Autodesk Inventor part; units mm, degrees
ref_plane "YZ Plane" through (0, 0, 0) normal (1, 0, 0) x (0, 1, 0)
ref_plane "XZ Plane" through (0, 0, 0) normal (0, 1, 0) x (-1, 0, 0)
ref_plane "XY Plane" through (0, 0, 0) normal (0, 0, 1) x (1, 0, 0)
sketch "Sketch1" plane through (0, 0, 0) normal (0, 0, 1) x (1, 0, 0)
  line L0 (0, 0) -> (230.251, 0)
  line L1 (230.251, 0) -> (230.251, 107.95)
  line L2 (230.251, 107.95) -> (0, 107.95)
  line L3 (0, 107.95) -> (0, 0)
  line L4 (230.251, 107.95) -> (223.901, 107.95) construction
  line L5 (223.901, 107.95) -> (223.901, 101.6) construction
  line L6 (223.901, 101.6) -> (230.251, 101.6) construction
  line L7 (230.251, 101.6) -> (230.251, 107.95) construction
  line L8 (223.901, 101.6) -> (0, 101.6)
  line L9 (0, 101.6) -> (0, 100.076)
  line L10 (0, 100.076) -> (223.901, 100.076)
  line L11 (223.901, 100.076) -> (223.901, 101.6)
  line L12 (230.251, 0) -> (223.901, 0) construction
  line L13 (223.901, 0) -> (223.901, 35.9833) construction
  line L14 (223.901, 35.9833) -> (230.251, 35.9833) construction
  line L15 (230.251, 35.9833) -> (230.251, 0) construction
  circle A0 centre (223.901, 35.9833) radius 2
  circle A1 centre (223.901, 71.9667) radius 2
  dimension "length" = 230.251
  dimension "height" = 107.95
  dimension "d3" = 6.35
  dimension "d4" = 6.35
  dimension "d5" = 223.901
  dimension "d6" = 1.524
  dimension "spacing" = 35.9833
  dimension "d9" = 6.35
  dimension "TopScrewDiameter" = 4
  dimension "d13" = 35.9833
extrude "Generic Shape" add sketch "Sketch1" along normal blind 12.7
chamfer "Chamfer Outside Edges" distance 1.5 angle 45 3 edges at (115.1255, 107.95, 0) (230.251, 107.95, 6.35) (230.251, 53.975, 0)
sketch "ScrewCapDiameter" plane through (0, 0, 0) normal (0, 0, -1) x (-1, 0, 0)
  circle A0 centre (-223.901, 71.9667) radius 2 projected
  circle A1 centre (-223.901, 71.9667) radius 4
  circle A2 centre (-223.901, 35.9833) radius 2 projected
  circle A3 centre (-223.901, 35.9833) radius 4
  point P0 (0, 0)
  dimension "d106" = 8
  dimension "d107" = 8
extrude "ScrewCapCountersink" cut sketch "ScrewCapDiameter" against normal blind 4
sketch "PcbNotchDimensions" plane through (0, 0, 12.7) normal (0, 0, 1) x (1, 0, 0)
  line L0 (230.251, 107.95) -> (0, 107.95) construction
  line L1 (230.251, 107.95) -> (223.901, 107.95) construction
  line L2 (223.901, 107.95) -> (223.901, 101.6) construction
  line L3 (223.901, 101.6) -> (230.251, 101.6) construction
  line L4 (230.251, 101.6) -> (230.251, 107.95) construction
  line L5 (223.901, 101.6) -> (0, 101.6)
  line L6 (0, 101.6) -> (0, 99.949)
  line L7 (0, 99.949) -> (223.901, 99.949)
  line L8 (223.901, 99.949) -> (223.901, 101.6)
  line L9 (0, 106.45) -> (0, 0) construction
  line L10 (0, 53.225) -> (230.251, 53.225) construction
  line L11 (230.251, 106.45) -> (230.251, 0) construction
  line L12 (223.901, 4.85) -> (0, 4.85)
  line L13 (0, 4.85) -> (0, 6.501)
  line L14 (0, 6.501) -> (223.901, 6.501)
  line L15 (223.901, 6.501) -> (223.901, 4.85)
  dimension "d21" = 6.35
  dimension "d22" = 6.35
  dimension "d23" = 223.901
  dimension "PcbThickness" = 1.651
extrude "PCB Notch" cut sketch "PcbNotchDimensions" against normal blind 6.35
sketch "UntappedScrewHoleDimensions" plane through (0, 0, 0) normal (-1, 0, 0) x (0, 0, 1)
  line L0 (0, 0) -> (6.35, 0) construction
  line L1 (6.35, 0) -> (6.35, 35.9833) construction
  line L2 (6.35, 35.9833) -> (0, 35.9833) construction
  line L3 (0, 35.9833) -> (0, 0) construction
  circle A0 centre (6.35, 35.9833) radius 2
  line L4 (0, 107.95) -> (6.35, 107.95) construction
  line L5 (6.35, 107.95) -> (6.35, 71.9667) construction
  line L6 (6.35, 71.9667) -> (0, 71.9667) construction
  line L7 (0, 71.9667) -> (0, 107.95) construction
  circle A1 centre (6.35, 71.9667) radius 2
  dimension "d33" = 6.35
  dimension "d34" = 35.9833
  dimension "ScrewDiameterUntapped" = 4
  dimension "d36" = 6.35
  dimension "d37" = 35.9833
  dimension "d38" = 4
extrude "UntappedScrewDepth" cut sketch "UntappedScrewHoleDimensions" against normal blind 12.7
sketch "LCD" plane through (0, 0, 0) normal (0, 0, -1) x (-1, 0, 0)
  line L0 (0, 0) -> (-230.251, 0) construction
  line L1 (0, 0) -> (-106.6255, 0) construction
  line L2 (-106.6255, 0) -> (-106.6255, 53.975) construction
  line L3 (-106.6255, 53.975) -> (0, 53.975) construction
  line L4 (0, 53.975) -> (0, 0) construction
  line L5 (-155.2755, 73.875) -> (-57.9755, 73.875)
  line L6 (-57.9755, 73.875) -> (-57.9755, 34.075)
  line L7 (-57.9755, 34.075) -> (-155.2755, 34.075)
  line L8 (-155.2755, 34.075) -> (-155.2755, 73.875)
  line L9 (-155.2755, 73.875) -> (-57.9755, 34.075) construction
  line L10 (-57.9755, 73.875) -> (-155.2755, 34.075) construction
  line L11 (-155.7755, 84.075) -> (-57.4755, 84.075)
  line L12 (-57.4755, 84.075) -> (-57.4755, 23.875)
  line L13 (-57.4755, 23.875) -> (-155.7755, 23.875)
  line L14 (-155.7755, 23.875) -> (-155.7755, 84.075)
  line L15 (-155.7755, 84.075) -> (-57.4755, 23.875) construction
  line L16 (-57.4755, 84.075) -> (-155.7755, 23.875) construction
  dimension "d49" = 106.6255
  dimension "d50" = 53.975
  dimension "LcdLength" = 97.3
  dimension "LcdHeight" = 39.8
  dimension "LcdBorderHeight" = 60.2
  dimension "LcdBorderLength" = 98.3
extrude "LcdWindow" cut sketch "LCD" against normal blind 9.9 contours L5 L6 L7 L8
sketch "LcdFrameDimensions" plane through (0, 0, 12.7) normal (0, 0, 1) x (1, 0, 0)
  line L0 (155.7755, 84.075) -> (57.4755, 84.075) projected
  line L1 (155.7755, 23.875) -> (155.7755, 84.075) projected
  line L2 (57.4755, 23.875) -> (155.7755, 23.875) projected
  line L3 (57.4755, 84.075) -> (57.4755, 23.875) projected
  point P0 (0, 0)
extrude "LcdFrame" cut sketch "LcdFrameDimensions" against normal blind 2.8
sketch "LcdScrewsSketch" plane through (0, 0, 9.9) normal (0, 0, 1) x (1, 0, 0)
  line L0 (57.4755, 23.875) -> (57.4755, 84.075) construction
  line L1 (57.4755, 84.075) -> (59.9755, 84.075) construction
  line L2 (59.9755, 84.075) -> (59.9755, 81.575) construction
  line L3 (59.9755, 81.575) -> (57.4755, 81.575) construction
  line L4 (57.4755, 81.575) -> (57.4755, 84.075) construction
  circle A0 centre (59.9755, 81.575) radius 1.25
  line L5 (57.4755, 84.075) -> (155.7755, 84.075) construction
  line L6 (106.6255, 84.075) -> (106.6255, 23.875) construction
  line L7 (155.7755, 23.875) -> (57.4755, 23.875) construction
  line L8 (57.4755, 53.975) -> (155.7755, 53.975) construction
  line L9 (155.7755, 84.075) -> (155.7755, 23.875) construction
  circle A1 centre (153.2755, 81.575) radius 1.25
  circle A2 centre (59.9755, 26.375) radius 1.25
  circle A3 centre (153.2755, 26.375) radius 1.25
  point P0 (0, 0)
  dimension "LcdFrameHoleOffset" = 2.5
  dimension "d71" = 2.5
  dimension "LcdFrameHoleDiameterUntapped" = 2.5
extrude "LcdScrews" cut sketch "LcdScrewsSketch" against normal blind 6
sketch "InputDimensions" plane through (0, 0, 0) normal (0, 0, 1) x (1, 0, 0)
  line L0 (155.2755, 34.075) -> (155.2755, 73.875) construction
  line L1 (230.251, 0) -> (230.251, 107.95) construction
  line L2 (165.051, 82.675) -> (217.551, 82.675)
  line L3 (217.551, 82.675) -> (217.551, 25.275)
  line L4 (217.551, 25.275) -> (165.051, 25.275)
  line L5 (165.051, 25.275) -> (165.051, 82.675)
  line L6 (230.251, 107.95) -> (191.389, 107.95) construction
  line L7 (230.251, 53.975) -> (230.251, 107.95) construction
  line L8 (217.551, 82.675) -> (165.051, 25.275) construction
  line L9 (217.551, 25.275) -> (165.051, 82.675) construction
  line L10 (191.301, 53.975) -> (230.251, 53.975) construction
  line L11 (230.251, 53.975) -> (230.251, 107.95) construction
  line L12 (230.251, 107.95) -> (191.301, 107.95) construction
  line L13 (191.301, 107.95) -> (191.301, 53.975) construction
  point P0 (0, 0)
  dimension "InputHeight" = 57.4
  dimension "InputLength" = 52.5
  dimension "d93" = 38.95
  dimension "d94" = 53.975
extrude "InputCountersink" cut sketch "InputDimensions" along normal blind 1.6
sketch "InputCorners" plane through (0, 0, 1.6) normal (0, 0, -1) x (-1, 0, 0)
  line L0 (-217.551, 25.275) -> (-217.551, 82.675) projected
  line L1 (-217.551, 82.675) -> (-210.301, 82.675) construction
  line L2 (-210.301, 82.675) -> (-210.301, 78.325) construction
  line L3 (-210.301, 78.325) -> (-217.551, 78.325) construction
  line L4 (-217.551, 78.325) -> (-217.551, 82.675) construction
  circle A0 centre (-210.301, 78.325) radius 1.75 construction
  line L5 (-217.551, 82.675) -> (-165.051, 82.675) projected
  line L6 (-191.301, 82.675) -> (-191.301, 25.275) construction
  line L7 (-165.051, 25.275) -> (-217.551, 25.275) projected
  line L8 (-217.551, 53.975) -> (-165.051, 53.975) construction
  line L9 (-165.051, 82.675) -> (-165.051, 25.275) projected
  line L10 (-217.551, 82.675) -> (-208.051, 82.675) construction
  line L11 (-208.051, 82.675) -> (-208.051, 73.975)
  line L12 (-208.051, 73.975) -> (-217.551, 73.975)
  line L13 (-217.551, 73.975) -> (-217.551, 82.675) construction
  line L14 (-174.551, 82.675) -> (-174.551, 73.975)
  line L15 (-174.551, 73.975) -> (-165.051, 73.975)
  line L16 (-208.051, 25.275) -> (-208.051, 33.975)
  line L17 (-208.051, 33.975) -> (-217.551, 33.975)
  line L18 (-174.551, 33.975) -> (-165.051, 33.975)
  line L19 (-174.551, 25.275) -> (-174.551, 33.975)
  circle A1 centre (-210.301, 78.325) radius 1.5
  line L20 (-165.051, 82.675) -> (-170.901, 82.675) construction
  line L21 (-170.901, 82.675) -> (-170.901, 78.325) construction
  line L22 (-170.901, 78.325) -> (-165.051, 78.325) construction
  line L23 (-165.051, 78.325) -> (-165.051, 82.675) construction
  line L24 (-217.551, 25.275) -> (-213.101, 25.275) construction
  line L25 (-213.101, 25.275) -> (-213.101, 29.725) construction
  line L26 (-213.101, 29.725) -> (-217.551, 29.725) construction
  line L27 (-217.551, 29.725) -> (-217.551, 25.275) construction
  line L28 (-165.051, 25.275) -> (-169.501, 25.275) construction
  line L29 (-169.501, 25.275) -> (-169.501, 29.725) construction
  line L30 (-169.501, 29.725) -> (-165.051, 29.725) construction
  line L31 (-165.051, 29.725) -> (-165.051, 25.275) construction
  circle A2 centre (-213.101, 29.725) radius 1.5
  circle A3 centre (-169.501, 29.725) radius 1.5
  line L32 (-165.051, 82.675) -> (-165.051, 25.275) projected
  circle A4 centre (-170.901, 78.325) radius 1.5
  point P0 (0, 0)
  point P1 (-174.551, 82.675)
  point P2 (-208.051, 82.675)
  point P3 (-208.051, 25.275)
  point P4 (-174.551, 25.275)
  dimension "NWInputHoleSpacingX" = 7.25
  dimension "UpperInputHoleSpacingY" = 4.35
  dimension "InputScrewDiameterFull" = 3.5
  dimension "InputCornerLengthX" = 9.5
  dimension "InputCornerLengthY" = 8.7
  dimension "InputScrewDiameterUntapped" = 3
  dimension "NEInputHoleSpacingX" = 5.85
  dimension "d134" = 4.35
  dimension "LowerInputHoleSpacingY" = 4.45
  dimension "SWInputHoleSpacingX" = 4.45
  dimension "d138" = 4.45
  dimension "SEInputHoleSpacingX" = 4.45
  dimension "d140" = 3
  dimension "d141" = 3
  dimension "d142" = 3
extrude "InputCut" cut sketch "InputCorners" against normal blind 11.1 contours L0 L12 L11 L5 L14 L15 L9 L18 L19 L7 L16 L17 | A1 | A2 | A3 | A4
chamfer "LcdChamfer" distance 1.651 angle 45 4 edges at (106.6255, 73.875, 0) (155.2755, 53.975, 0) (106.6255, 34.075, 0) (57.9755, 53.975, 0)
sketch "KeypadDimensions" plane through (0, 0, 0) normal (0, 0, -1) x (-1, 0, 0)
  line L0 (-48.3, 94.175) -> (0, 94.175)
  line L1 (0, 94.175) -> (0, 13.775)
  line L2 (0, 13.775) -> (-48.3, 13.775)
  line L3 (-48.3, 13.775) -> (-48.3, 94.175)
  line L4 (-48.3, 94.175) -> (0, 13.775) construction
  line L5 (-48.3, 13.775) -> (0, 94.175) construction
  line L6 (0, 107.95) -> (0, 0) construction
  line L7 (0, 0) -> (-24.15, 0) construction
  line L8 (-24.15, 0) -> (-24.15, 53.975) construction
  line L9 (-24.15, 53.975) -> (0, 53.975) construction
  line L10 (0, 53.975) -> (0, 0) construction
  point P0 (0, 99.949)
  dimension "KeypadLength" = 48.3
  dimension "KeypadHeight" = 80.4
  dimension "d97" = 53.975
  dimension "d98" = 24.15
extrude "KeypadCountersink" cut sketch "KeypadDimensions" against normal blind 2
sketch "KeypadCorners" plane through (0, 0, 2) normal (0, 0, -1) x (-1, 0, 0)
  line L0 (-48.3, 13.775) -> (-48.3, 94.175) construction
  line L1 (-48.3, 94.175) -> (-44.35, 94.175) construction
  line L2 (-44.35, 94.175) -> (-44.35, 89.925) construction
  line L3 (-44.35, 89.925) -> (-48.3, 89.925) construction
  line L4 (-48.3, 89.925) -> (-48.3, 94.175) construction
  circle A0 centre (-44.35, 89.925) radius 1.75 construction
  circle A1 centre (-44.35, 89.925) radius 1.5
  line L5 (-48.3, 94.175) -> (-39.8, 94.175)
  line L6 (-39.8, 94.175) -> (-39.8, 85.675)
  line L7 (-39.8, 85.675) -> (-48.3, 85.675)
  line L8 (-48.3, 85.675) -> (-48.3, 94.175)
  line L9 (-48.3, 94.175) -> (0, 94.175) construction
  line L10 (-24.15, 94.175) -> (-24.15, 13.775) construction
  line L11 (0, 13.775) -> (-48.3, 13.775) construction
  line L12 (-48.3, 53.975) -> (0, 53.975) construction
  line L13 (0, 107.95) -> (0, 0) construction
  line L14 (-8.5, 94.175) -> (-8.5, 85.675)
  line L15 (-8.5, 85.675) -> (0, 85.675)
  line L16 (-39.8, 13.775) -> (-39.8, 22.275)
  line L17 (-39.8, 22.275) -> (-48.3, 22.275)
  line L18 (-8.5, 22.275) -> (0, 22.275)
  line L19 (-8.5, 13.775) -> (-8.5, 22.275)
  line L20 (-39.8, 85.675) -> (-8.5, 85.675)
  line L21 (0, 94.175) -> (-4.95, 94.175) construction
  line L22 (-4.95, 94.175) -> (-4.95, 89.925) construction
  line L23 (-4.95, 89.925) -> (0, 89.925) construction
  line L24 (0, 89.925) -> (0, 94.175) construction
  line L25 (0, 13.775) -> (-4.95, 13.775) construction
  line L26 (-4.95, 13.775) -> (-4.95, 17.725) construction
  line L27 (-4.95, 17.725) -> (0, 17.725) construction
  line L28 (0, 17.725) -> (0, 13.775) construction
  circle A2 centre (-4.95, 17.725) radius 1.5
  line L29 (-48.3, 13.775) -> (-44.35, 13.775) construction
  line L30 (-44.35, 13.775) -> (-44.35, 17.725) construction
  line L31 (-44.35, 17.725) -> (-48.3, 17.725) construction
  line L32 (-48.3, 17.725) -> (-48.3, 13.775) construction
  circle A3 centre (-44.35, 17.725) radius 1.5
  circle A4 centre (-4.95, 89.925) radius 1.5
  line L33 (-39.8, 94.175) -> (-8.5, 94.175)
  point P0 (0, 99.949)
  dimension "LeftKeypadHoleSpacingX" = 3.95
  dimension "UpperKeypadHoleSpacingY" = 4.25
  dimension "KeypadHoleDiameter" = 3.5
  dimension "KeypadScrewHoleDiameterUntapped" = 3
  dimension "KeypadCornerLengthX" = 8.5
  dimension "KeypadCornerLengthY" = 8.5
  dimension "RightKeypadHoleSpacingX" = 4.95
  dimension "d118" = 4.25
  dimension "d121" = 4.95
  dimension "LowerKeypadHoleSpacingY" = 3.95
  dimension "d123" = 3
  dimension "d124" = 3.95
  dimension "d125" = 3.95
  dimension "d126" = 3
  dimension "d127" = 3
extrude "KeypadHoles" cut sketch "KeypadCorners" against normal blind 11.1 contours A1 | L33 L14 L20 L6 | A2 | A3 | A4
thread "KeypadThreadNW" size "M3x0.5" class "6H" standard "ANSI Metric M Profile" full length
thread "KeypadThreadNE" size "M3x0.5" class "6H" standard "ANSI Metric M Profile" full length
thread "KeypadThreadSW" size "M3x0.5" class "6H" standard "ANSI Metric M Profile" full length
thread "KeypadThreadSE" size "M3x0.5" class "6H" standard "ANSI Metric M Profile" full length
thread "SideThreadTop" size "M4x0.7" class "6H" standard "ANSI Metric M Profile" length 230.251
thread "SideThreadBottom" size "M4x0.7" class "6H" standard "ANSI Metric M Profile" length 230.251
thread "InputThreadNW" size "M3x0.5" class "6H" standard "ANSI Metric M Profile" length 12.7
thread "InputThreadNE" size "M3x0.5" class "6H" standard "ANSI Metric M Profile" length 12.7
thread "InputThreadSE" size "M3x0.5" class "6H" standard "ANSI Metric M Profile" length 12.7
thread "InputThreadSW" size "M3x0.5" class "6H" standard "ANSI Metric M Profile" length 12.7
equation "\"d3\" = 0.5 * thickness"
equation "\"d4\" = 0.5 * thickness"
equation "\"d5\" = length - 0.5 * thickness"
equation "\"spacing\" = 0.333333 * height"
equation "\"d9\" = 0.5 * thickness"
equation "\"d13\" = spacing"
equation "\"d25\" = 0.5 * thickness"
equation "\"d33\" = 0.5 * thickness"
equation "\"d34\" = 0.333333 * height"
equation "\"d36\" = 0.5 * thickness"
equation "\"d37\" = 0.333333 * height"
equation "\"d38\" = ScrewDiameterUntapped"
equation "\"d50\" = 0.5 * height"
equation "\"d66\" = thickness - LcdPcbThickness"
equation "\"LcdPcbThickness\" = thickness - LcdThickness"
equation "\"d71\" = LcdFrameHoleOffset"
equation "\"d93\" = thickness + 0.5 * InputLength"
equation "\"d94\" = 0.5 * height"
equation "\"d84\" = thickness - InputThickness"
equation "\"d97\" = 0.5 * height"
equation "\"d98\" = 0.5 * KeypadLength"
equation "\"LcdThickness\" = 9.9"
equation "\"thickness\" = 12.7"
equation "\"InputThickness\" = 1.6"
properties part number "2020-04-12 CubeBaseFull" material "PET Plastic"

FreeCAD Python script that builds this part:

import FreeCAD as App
import Part
import Sketcher

V = App.Vector
Q = App.Units.Quantity


def edges_at(feature, points):
    """Names of the edges that pass closest to the given points."""
    edges = feature.Shape.Edges
    near = lambda p: min(range(len(edges)), key=lambda i: edges[i].distToShape(Part.Vertex(*p))[0])
    return sorted({f"Edge{near(p) + 1}" for p in points})

doc = App.newDocument("Part")
body = doc.addObject("PartDesign::Body", "Body")

sketch1 = body.newObject("Sketcher::SketchObject", "Sketch")
sketch1.AttachmentSupport = (doc.getObject("XY_Plane"), [""])
sketch1.MapMode = "FlatFace"
sketch1.addGeometry(Part.LineSegment(V(0, 0, 0), V(230.3, 0, 0)), False)
sketch1.addGeometry(Part.LineSegment(V(230.3, 0, 0), V(230.3, 108, 0)), False)
sketch1.addGeometry(Part.LineSegment(V(230.3, 108, 0), V(0, 108, 0)), False)
sketch1.addGeometry(Part.LineSegment(V(0, 108, 0), V(0, 0, 0)), False)
sketch1.addGeometry(Part.Circle(V(223.9, 36, 0), V(0, 0, 1), 2), False)
sketch1.addGeometry(Part.Circle(V(223.9, 72, 0), V(0, 0, 1), 2), False)
sketch1.addConstraint(Sketcher.Constraint("Coincident", 0, 2, 1, 1))
sketch1.addConstraint(Sketcher.Constraint("Coincident", 1, 2, 2, 1))
sketch1.addConstraint(Sketcher.Constraint("Coincident", 2, 2, 3, 1))
sketch1.addConstraint(Sketcher.Constraint("Coincident", 3, 2, 0, 1))
sketch1.addConstraint(Sketcher.Constraint("Horizontal", 0))
sketch1.addConstraint(Sketcher.Constraint("Vertical", 1))
sketch1.addConstraint(Sketcher.Constraint("Horizontal", 2))
sketch1.addConstraint(Sketcher.Constraint("Vertical", 3))
sketch1.addConstraint(Sketcher.Constraint("Coincident", 3, 2, -1, 1))
sketch1.addConstraint(Sketcher.Constraint("Equal", 4, 5))
sketch1.addConstraint(Sketcher.Constraint("Vertical", 4, 3, 5, 3))
sketch1.addConstraint(Sketcher.Constraint("Diameter", 4, Q("4 mm")))
sketch1.addConstraint(Sketcher.Constraint("DistanceY", 1, 1, 1, 2, Q("107.95 mm")))
sketch1.addConstraint(Sketcher.Constraint("DistanceX", 0, 1, 0, 2, Q("230.251 mm")))
sketch1.addConstraint(Sketcher.Constraint("DistanceX", 4, 3, 0, 2, Q("6.35 mm")))
sketch1.addConstraint(Sketcher.Constraint("DistanceY", -1, 1, 4, 3, Q("35.9833 mm")))
sketch1.addConstraint(Sketcher.Constraint("DistanceY", 4, 3, 5, 3, Q("35.9834 mm")))
pad1 = body.newObject("PartDesign::Pad", "Pad")
pad1.Profile = sketch1
pad1.Length = 12.7
doc.recompute()

chamfer = body.newObject("PartDesign::Chamfer", "Chamfer")
chamfer.Base = (pad1, edges_at(pad1, [(115.126, 107.95, 0), (230.251, 107.95, 6.35), (230.251, 53.975, 0)]))
chamfer.Size = 1.5

sketch2 = body.newObject("Sketcher::SketchObject", "Sketch001")
sketch2.AttachmentSupport = (doc.getObject("XY_Plane"), [""])
sketch2.MapMode = "FlatFace"
sketch2.addGeometry(Part.Circle(V(223.9, 72, 0), V(0, 0, 1), 4), False)
sketch2.addGeometry(Part.Circle(V(223.9, 72, 0), V(0, 0, 1), 2), False)
sketch2.addGeometry(Part.Circle(V(223.9, 36, 0), V(0, 0, 1), 4), False)
sketch2.addGeometry(Part.Circle(V(223.9, 36, 0), V(0, 0, 1), 2), False)
sketch2.addConstraint(Sketcher.Constraint("Coincident", 1, 3, 0, 3))
sketch2.addConstraint(Sketcher.Constraint("Coincident", 3, 3, 2, 3))
sketch2.addConstraint(Sketcher.Constraint("Equal", 0, 2))
sketch2.addConstraint(Sketcher.Constraint("Equal", 1, 3))
sketch2.addConstraint(Sketcher.Constraint("Vertical", 1, 3, 2, 3))
sketch2.addConstraint(Sketcher.Constraint("Diameter", 0, Q("8 mm")))
sketch2.addConstraint(Sketcher.Constraint("Diameter", 1, Q("4 mm")))
sketch2.addConstraint(Sketcher.Constraint("DistanceX", -1, 1, 0, 3, Q("223.901 mm")))
sketch2.addConstraint(Sketcher.Constraint("DistanceY", -1, 1, 0, 3, Q("71.9667 mm")))
sketch2.addConstraint(Sketcher.Constraint("DistanceY", -1, 1, 2, 3, Q("35.9833 mm")))
pocket1 = body.newObject("PartDesign::Pocket", "Pocket")
pocket1.Profile = sketch2
pocket1.Length = 4
pocket1.Reversed = True

sketch3 = body.newObject("Sketcher::SketchObject", "Sketch002")
sketch3.AttachmentSupport = (doc.getObject("XY_Plane"), [""])
sketch3.MapMode = "FlatFace"
sketch3.AttachmentOffset = App.Placement(V(0, 0, 12.7), App.Rotation())
sketch3.addGeometry(Part.LineSegment(V(223.9, 99.9, 0), V(223.9, 101.6, 0)), False)
sketch3.addGeometry(Part.LineSegment(V(223.9, 101.6, 0), V(0, 101.6, 0)), False)
sketch3.addGeometry(Part.LineSegment(V(0, 101.6, 0), V(0, 99.9, 0)), False)
sketch3.addGeometry(Part.LineSegment(V(0, 99.9, 0), V(223.9, 99.9, 0)), False)
sketch3.addGeometry(Part.LineSegment(V(0, 4.8, 0), V(223.9, 4.8, 0)), False)
sketch3.addGeometry(Part.LineSegment(V(223.9, 4.8, 0), V(223.9, 6.5, 0)), False)
sketch3.addGeometry(Part.LineSegment(V(223.9, 6.5, 0), V(0, 6.5, 0)), False)
sketch3.addGeometry(Part.LineSegment(V(0, 6.5, 0), V(0, 4.8, 0)), False)
sketch3.addConstraint(Sketcher.Constraint("Coincident", 0, 2, 1, 1))
sketch3.addConstraint(Sketcher.Constraint("Coincident", 1, 2, 2, 1))
sketch3.addConstraint(Sketcher.Constraint("Coincident", 2, 2, 3, 1))
sketch3.addConstraint(Sketcher.Constraint("Coincident", 3, 2, 0, 1))
sketch3.addConstraint(Sketcher.Constraint("Coincident", 4, 2, 5, 1))
sketch3.addConstraint(Sketcher.Constraint("Coincident", 5, 2, 6, 1))
sketch3.addConstraint(Sketcher.Constraint("Coincident", 6, 2, 7, 1))
sketch3.addConstraint(Sketcher.Constraint("Coincident", 7, 2, 4, 1))
sketch3.addConstraint(Sketcher.Constraint("Vertical", 0))
sketch3.addConstraint(Sketcher.Constraint("Horizontal", 1))
sketch3.addConstraint(Sketcher.Constraint("Vertical", 2))
sketch3.addConstraint(Sketcher.Constraint("Horizontal", 3))
sketch3.addConstraint(Sketcher.Constraint("Horizontal", 4))
sketch3.addConstraint(Sketcher.Constraint("Vertical", 5))
sketch3.addConstraint(Sketcher.Constraint("Horizontal", 6))
sketch3.addConstraint(Sketcher.Constraint("Vertical", 7))
sketch3.addConstraint(Sketcher.Constraint("PointOnObject", 1, 2, -2))
sketch3.addConstraint(Sketcher.Constraint("PointOnObject", 6, 2, -2))
sketch3.addConstraint(Sketcher.Constraint("Vertical", 3, 2, 4, 2))
sketch3.addConstraint(Sketcher.Constraint("Equal", 2, 5))
sketch3.addConstraint(Sketcher.Constraint("DistanceX", 1, 2, 1, 1, Q("223.901 mm")))
sketch3.addConstraint(Sketcher.Constraint("DistanceY", 0, 1, 0, 2, Q("1.651 mm")))
sketch3.addConstraint(Sketcher.Constraint("DistanceY", -1, 1, 0, 2, Q("101.6 mm")))
sketch3.addConstraint(Sketcher.Constraint("DistanceY", -1, 1, 4, 2, Q("4.85 mm")))
pocket2 = body.newObject("PartDesign::Pocket", "Pocket001")
pocket2.Profile = sketch3
pocket2.Length = 6.35

sketch4 = body.newObject("Sketcher::SketchObject", "Sketch003")
sketch4.AttachmentSupport = (doc.getObject("YZ_Plane"), [""])
sketch4.MapMode = "FlatFace"
sketch4.addGeometry(Part.Circle(V(36, 6.3, 0), V(0, 0, 1), 2), False)
sketch4.addGeometry(Part.Circle(V(72, 6.3, 0), V(0, 0, 1), 2), False)
sketch4.addConstraint(Sketcher.Constraint("Equal", 0, 1))
sketch4.addConstraint(Sketcher.Constraint("Horizontal", 0, 3, 1, 3))
sketch4.addConstraint(Sketcher.Constraint("Diameter", 0, Q("4 mm")))
sketch4.addConstraint(Sketcher.Constraint("DistanceY", -1, 1, 0, 3, Q("6.35 mm")))
sketch4.addConstraint(Sketcher.Constraint("DistanceX", -1, 1, 0, 3, Q("35.9833 mm")))
sketch4.addConstraint(Sketcher.Constraint("DistanceX", 0, 3, 1, 3, Q("35.9834 mm")))
pocket3 = body.newObject("PartDesign::Pocket", "Pocket002")
pocket3.Profile = sketch4
pocket3.Length = 12.7
pocket3.Reversed = True

sketch5 = body.newObject("Sketcher::SketchObject", "Sketch004")
sketch5.AttachmentSupport = (doc.getObject("XY_Plane"), [""])
sketch5.MapMode = "FlatFace"
sketch5.addGeometry(Part.LineSegment(V(58, 74, 0), V(155, 74, 0)), False)
sketch5.addGeometry(Part.LineSegment(V(155, 74, 0), V(155, 34, 0)), False)
sketch5.addGeometry(Part.LineSegment(V(155, 34, 0), V(58, 34, 0)), False)
sketch5.addGeometry(Part.LineSegment(V(58, 34, 0), V(58, 74, 0)), False)
sketch5.addConstraint(Sketcher.Constraint("Coincident", 0, 2, 1, 1))
sketch5.addConstraint(Sketcher.Constraint("Coincident", 1, 2, 2, 1))
sketch5.addConstraint(Sketcher.Constraint("Coincident", 2, 2, 3, 1))
sketch5.addConstraint(Sketcher.Constraint("Coincident", 3, 2, 0, 1))
sketch5.addConstraint(Sketcher.Constraint("Horizontal", 0))
sketch5.addConstraint(Sketcher.Constraint("Vertical", 1))
sketch5.addConstraint(Sketcher.Constraint("Horizontal", 2))
sketch5.addConstraint(Sketcher.Constraint("Vertical", 3))
sketch5.addConstraint(Sketcher.Constraint("DistanceX", 0, 1, 0, 2, Q("97.3 mm")))
sketch5.addConstraint(Sketcher.Constraint("DistanceY", 1, 2, 1, 1, Q("39.8 mm")))
sketch5.addConstraint(Sketcher.Constraint("DistanceY", -1, 1, 0, 2, Q("73.875 mm")))
sketch5.addConstraint(Sketcher.Constraint("DistanceX", -1, 1, 0, 2, Q("155.2755 mm")))
pocket4 = body.newObject("PartDesign::Pocket", "Pocket003")
pocket4.Profile = sketch5
pocket4.Length = 9.9
pocket4.Reversed = True

sketch6 = body.newObject("Sketcher::SketchObject", "Sketch005")
sketch6.AttachmentSupport = (doc.getObject("XY_Plane"), [""])
sketch6.MapMode = "FlatFace"
sketch6.AttachmentOffset = App.Placement(V(0, 0, 12.7), App.Rotation())
sketch6.addGeometry(Part.LineSegment(V(156, 24, 0), V(156, 84, 0)), False)
sketch6.addGeometry(Part.LineSegment(V(156, 84, 0), V(57, 84, 0)), False)
sketch6.addGeometry(Part.LineSegment(V(57, 84, 0), V(57, 24, 0)), False)
sketch6.addGeometry(Part.LineSegment(V(57, 24, 0), V(156, 24, 0)), False)
sketch6.addConstraint(Sketcher.Constraint("Coincident", 0, 2, 1, 1))
sketch6.addConstraint(Sketcher.Constraint("Coincident", 1, 2, 2, 1))
sketch6.addConstraint(Sketcher.Constraint("Coincident", 2, 2, 3, 1))
sketch6.addConstraint(Sketcher.Constraint("Coincident", 3, 2, 0, 1))
sketch6.addConstraint(Sketcher.Constraint("Vertical", 0))
sketch6.addConstraint(Sketcher.Constraint("Horizontal", 1))
sketch6.addConstraint(Sketcher.Constraint("Vertical", 2))
sketch6.addConstraint(Sketcher.Constraint("Horizontal", 3))
sketch6.addConstraint(Sketcher.Constraint("DistanceX", 1, 2, 1, 1, Q("98.3 mm")))
sketch6.addConstraint(Sketcher.Constraint("DistanceY", 0, 1, 0, 2, Q("60.2 mm")))
sketch6.addConstraint(Sketcher.Constraint("DistanceY", -1, 1, 0, 2, Q("84.075 mm")))
sketch6.addConstraint(Sketcher.Constraint("DistanceX", -1, 1, 0, 2, Q("155.7755 mm")))
pocket5 = body.newObject("PartDesign::Pocket", "Pocket004")
pocket5.Profile = sketch6
pocket5.Length = 2.8

sketch7 = body.newObject("Sketcher::SketchObject", "Sketch006")
sketch7.AttachmentSupport = (doc.getObject("XY_Plane"), [""])
sketch7.MapMode = "FlatFace"
sketch7.AttachmentOffset = App.Placement(V(0, 0, 9.9), App.Rotation())
sketch7.addGeometry(Part.Circle(V(60, 81.6, 0), V(0, 0, 1), 1.2), False)
sketch7.addGeometry(Part.Circle(V(153.3, 81.6, 0), V(0, 0, 1), 1.2), False)
sketch7.addGeometry(Part.Circle(V(60, 26.4, 0), V(0, 0, 1), 1.2), False)
sketch7.addGeometry(Part.Circle(V(153.3, 26.4, 0), V(0, 0, 1), 1.2), False)
sketch7.addConstraint(Sketcher.Constraint("Equal", 0, 1))
sketch7.addConstraint(Sketcher.Constraint("Equal", 1, 2))
sketch7.addConstraint(Sketcher.Constraint("Equal", 2, 3))
sketch7.addConstraint(Sketcher.Constraint("Horizontal", 0, 3, 1, 3))
sketch7.addConstraint(Sketcher.Constraint("Horizontal", 2, 3, 3, 3))
sketch7.addConstraint(Sketcher.Constraint("Vertical", 0, 3, 2, 3))
sketch7.addConstraint(Sketcher.Constraint("Vertical", 1, 3, 3, 3))
sketch7.addConstraint(Sketcher.Constraint("Diameter", 0, Q("2.5 mm")))
sketch7.addConstraint(Sketcher.Constraint("DistanceX", 0, 3, 1, 3, Q("93.3 mm")))
sketch7.addConstraint(Sketcher.Constraint("DistanceY", 2, 3, 0, 3, Q("55.2 mm")))
sketch7.addConstraint(Sketcher.Constraint("DistanceY", -1, 1, 0, 3, Q("81.575 mm")))
sketch7.addConstraint(Sketcher.Constraint("DistanceX", -1, 1, 0, 3, Q("59.9755 mm")))
pocket6 = body.newObject("PartDesign::Pocket", "Pocket005")
pocket6.Profile = sketch7
pocket6.Length = 6

sketch8 = body.newObject("Sketcher::SketchObject", "Sketch007")
sketch8.AttachmentSupport = (doc.getObject("XY_Plane"), [""])
sketch8.MapMode = "FlatFace"
sketch8.addGeometry(Part.LineSegment(V(218, 83, 0), V(165, 83, 0)), False)
sketch8.addGeometry(Part.LineSegment(V(165, 83, 0), V(165, 25, 0)), False)
sketch8.addGeometry(Part.LineSegment(V(165, 25, 0), V(218, 25, 0)), False)
sketch8.addGeometry(Part.LineSegment(V(218, 25, 0), V(218, 83, 0)), False)
sketch8.addConstraint(Sketcher.Constraint("Coincident", 0, 2, 1, 1))
sketch8.addConstraint(Sketcher.Constraint("Coincident", 1, 2, 2, 1))
sketch8.addConstraint(Sketcher.Constraint("Coincident", 2, 2, 3, 1))
sketch8.addConstraint(Sketcher.Constraint("Coincident", 3, 2, 0, 1))
sketch8.addConstraint(Sketcher.Constraint("Horizontal", 0))
sketch8.addConstraint(Sketcher.Constraint("Vertical", 1))
sketch8.addConstraint(Sketcher.Constraint("Horizontal", 2))
sketch8.addConstraint(Sketcher.Constraint("Vertical", 3))
sketch8.addConstraint(Sketcher.Constraint("DistanceX", 0, 2, 0, 1, Q("52.5 mm")))
sketch8.addConstraint(Sketcher.Constraint("DistanceY", 1, 2, 1, 1, Q("57.4 mm")))
sketch8.addConstraint(Sketcher.Constraint("DistanceX", -1, 1, 0, 2, Q("165.051 mm")))
sketch8.addConstraint(Sketcher.Constraint("DistanceY", -1, 1, 0, 2, Q("82.675 mm")))
pocket7 = body.newObject("PartDesign::Pocket", "Pocket006")
pocket7.Profile = sketch8
pocket7.Length = 1.6
pocket7.Reversed = True

sketch9 = body.newObject("Sketcher::SketchObject", "Sketch008")
sketch9.AttachmentSupport = (doc.getObject("XY_Plane"), [""])
sketch9.MapMode = "FlatFace"
sketch9.AttachmentOffset = App.Placement(V(0, 0, 1.6), App.Rotation())
sketch9.addGeometry(Part.LineSegment(V(217.6, 74, 0), V(217.6, 34, 0)), False)
sketch9.addGeometry(Part.LineSegment(V(217.6, 34, 0), V(208.1, 34, 0)), False)
sketch9.addGeometry(Part.LineSegment(V(208.1, 34, 0), V(208.1, 25.3, 0)), False)
sketch9.addGeometry(Part.LineSegment(V(208.1, 25.3, 0), V(174.6, 25.3, 0)), False)
sketch9.addGeometry(Part.LineSegment(V(174.6, 25.3, 0), V(174.6, 34, 0)), False)
sketch9.addGeometry(Part.LineSegment(V(174.6, 34, 0), V(165.1, 34, 0)), False)
sketch9.addGeometry(Part.LineSegment(V(165.1, 34, 0), V(165.1, 74, 0)), False)
sketch9.addGeometry(Part.LineSegment(V(165.1, 74, 0), V(174.6, 74, 0)), False)
sketch9.addGeometry(Part.LineSegment(V(174.6, 74, 0), V(174.6, 82.7, 0)), False)
sketch9.addGeometry(Part.LineSegment(V(174.6, 82.7, 0), V(208.1, 82.7, 0)), False)
sketch9.addGeometry(Part.LineSegment(V(208.1, 82.7, 0), V(208.1, 74, 0)), False)
sketch9.addGeometry(Part.LineSegment(V(208.1, 74, 0), V(217.6, 74, 0)), False)
sketch9.addGeometry(Part.Circle(V(210.3, 78.3, 0), V(0, 0, 1), 1.5), False)
sketch9.addGeometry(Part.Circle(V(213.1, 29.7, 0), V(0, 0, 1), 1.5), False)
sketch9.addGeometry(Part.Circle(V(169.5, 29.7, 0), V(0, 0, 1), 1.5), False)
sketch9.addGeometry(Part.Circle(V(170.9, 78.3, 0), V(0, 0, 1), 1.5), False)
sketch9.addConstraint(Sketcher.Constraint("Coincident", 0, 2, 1, 1))
sketch9.addConstraint(Sketcher.Constraint("Coincident", 1, 2, 2, 1))
sketch9.addConstraint(Sketcher.Constraint("Coincident", 2, 2, 3, 1))
sketch9.addConstraint(Sketcher.Constraint("Coincident", 3, 2, 4, 1))
sketch9.addConstraint(Sketcher.Constraint("Coincident", 4, 2, 5, 1))
sketch9.addConstraint(Sketcher.Constraint("Coincident", 5, 2, 6, 1))
sketch9.addConstraint(Sketcher.Constraint("Coincident", 6, 2, 7, 1))
sketch9.addConstraint(Sketcher.Constraint("Coincident", 7, 2, 8, 1))
sketch9.addConstraint(Sketcher.Constraint("Coincident", 8, 2, 9, 1))
sketch9.addConstraint(Sketcher.Constraint("Coincident", 9, 2, 10, 1))
sketch9.addConstraint(Sketcher.Constraint("Coincident", 10, 2, 11, 1))
sketch9.addConstraint(Sketcher.Constraint("Coincident", 11, 2, 0, 1))
sketch9.addConstraint(Sketcher.Constraint("Vertical", 0))
sketch9.addConstraint(Sketcher.Constraint("Horizontal", 1))
sketch9.addConstraint(Sketcher.Constraint("Vertical", 2))
sketch9.addConstraint(Sketcher.Constraint("Horizontal", 3))
sketch9.addConstraint(Sketcher.Constraint("Vertical", 4))
sketch9.addConstraint(Sketcher.Constraint("Horizontal", 5))
sketch9.addConstraint(Sketcher.Constraint("Vertical", 6))
sketch9.addConstraint(Sketcher.Constraint("Horizontal", 7))
sketch9.addConstraint(Sketcher.Constraint("Vertical", 8))
sketch9.addConstraint(Sketcher.Constraint("Horizontal", 9))
sketch9.addConstraint(Sketcher.Constraint("Vertical", 10))
sketch9.addConstraint(Sketcher.Constraint("Horizontal", 11))
sketch9.addConstraint(Sketcher.Constraint("Equal", 12, 13))
sketch9.addConstraint(Sketcher.Constraint("Equal", 13, 14))
sketch9.addConstraint(Sketcher.Constraint("Equal", 14, 15))
sketch9.addConstraint(Sketcher.Constraint("Horizontal", 13, 3, 14, 3))
sketch9.addConstraint(Sketcher.Constraint("Horizontal", 12, 3, 15, 3))
sketch9.addConstraint(Sketcher.Constraint("Horizontal", 1, 2, 4, 2))
sketch9.addConstraint(Sketcher.Constraint("Horizontal", 7, 2, 10, 2))
sketch9.addConstraint(Sketcher.Constraint("Vertical", 4, 2, 7, 2))
sketch9.addConstraint(Sketcher.Constraint("Vertical", 2, 2, 9, 2))
sketch9.addConstraint(Sketcher.Constraint("Equal", 1, 5))
sketch9.addConstraint(Sketcher.Constraint("Equal", 4, 8))
sketch9.addConstraint(Sketcher.Constraint("Diameter", 12, Q("3 mm")))
sketch9.addConstraint(Sketcher.Constraint("DistanceX", 1, 2, 1, 1, Q("9.5 mm")))
sketch9.addConstraint(Sketcher.Constraint("DistanceY", 2, 2, 2, 1, Q("8.7 mm")))
sketch9.addConstraint(Sketcher.Constraint("DistanceY", 0, 2, 0, 1, Q("40 mm")))
sketch9.addConstraint(Sketcher.Constraint("DistanceX", 13, 3, 0, 2, Q("4.45 mm")))
sketch9.addConstraint(Sketcher.Constraint("DistanceX", 12, 3, 0, 2, Q("7.25 mm")))
sketch9.addConstraint(Sketcher.Constraint("DistanceY", 2, 2, 13, 3, Q("4.45 mm")))
sketch9.addConstraint(Sketcher.Constraint("DistanceX", 5, 2, 14, 3, Q("4.45 mm")))
sketch9.addConstraint(Sketcher.Constraint("DistanceX", 6, 2, 15, 3, Q("5.85 mm")))
sketch9.addConstraint(Sketcher.Constraint("DistanceY", 6, 2, 15, 3, Q("4.35 mm")))
sketch9.addConstraint(Sketcher.Constraint("DistanceX", 3, 2, 3, 1, Q("33.5 mm")))
sketch9.addConstraint(Sketcher.Constraint("DistanceX", -1, 1, 12, 3, Q("210.301 mm")))
sketch9.addConstraint(Sketcher.Constraint("DistanceY", -1, 1, 12, 3, Q("78.325 mm")))
pocket8 = body.newObject("PartDesign::Pocket", "Pocket007")
pocket8.Profile = sketch9
pocket8.Length = 11.1
pocket8.Reversed = True
doc.recompute()

chamfer2 = body.newObject("PartDesign::Chamfer", "Chamfer001")
chamfer2.Base = (pocket8, edges_at(pocket8, [
    (106.626, 73.875, 0),
    (155.275, 53.975, 0),
    (106.626, 34.075, 0),
    (57.975, 53.975, 0),
]))
chamfer2.Size = 1.651

sketch10 = body.newObject("Sketcher::SketchObject", "Sketch009")
sketch10.AttachmentSupport = (doc.getObject("XY_Plane"), [""])
sketch10.MapMode = "FlatFace"
sketch10.addGeometry(Part.LineSegment(V(0, 94, 0), V(48, 94, 0)), False)
sketch10.addGeometry(Part.LineSegment(V(48, 94, 0), V(48, 14, 0)), False)
sketch10.addGeometry(Part.LineSegment(V(48, 14, 0), V(0, 14, 0)), False)
sketch10.addGeometry(Part.LineSegment(V(0, 14, 0), V(0, 94, 0)), False)
sketch10.addConstraint(Sketcher.Constraint("Coincident", 0, 2, 1, 1))
sketch10.addConstraint(Sketcher.Constraint("Coincident", 1, 2, 2, 1))
sketch10.addConstraint(Sketcher.Constraint("Coincident", 2, 2, 3, 1))
sketch10.addConstraint(Sketcher.Constraint("Coincident", 3, 2, 0, 1))
sketch10.addConstraint(Sketcher.Constraint("Horizontal", 0))
sketch10.addConstraint(Sketcher.Constraint("Vertical", 1))
sketch10.addConstraint(Sketcher.Constraint("Horizontal", 2))
sketch10.addConstraint(Sketcher.Constraint("Vertical", 3))
sketch10.addConstraint(Sketcher.Constraint("PointOnObject", 2, 2, -2))
sketch10.addConstraint(Sketcher.Constraint("DistanceX", 0, 1, 0, 2, Q("48.3 mm")))
sketch10.addConstraint(Sketcher.Constraint("DistanceY", 1, 2, 1, 1, Q("80.4 mm")))
sketch10.addConstraint(Sketcher.Constraint("DistanceY", -1, 1, 0, 2, Q("94.175 mm")))
pocket9 = body.newObject("PartDesign::Pocket", "Pocket008")
pocket9.Profile = sketch10
pocket9.Length = 2
pocket9.Reversed = True

sketch11 = body.newObject("Sketcher::SketchObject", "Sketch010")
sketch11.AttachmentSupport = (doc.getObject("XY_Plane"), [""])
sketch11.MapMode = "FlatFace"
sketch11.AttachmentOffset = App.Placement(V(0, 0, 2), App.Rotation())
sketch11.addGeometry(Part.Circle(V(44.4, 89.9, 0), V(0, 0, 1), 1.5), False)
sketch11.addGeometry(Part.LineSegment(V(8.5, 94.2, 0), V(39.8, 94.2, 0)), False)
sketch11.addGeometry(Part.LineSegment(V(39.8, 94.2, 0), V(39.8, 85.7, 0)), False)
sketch11.addGeometry(Part.LineSegment(V(39.8, 85.7, 0), V(8.5, 85.7, 0)), False)
sketch11.addGeometry(Part.LineSegment(V(8.5, 85.7, 0), V(8.5, 94.2, 0)), False)
sketch11.addGeometry(Part.Circle(V(5, 17.7, 0), V(0, 0, 1), 1.5), False)
sketch11.addGeometry(Part.Circle(V(44.4, 17.7, 0), V(0, 0, 1), 1.5), False)
sketch11.addGeometry(Part.Circle(V(5, 89.9, 0), V(0, 0, 1), 1.5), False)
sketch11.addConstraint(Sketcher.Constraint("Coincident", 1, 2, 2, 1))
sketch11.addConstraint(Sketcher.Constraint("Coincident", 2, 2, 3, 1))
sketch11.addConstraint(Sketcher.Constraint("Coincident", 3, 2, 4, 1))
sketch11.addConstraint(Sketcher.Constraint("Coincident", 4, 2, 1, 1))
sketch11.addConstraint(Sketcher.Constraint("Horizontal", 1))
sketch11.addConstraint(Sketcher.Constraint("Vertical", 2))
sketch11.addConstraint(Sketcher.Constraint("Horizontal", 3))
sketch11.addConstraint(Sketcher.Constraint("Vertical", 4))
sketch11.addConstraint(Sketcher.Constraint("Equal", 0, 5))
sketch11.addConstraint(Sketcher.Constraint("Equal", 5, 6))
sketch11.addConstraint(Sketcher.Constraint("Equal", 6, 7))
sketch11.addConstraint(Sketcher.Constraint("Horizontal", 5, 3, 6, 3))
sketch11.addConstraint(Sketcher.Constraint("Horizontal", 0, 3, 7, 3))
sketch11.addConstraint(Sketcher.Constraint("Vertical", 0, 3, 6, 3))
sketch11.addConstraint(Sketcher.Constraint("Vertical", 5, 3, 7, 3))
sketch11.addConstraint(Sketcher.Constraint("Diameter", 0, Q("3 mm")))
sketch11.addConstraint(Sketcher.Constraint("DistanceY", 2, 2, 2, 1, Q("8.5 mm")))
sketch11.addConstraint(Sketcher.Constraint("DistanceX", -1, 1, 3, 2, Q("8.5 mm")))
sketch11.addConstraint(Sketcher.Constraint("DistanceX", -1, 1, 5, 3, Q("4.95 mm")))
sketch11.addConstraint(Sketcher.Constraint("DistanceY", 0, 3, 1, 2, Q("4.25 mm")))
sketch11.addConstraint(Sketcher.Constraint("DistanceX", 1, 1, 1, 2, Q("31.3 mm")))
sketch11.addConstraint(Sketcher.Constraint("DistanceX", 5, 3, 0, 3, Q("39.4 mm")))
sketch11.addConstraint(Sketcher.Constraint("DistanceY", 5, 3, 0, 3, Q("72.2 mm")))
sketch11.addConstraint(Sketcher.Constraint("DistanceY", -1, 1, 0, 3, Q("89.925 mm")))
pocket10 = body.newObject("PartDesign::Pocket", "Pocket009")
pocket10.Profile = sketch11
pocket10.Length = 11.1
pocket10.Reversed = True

doc.recompute()
